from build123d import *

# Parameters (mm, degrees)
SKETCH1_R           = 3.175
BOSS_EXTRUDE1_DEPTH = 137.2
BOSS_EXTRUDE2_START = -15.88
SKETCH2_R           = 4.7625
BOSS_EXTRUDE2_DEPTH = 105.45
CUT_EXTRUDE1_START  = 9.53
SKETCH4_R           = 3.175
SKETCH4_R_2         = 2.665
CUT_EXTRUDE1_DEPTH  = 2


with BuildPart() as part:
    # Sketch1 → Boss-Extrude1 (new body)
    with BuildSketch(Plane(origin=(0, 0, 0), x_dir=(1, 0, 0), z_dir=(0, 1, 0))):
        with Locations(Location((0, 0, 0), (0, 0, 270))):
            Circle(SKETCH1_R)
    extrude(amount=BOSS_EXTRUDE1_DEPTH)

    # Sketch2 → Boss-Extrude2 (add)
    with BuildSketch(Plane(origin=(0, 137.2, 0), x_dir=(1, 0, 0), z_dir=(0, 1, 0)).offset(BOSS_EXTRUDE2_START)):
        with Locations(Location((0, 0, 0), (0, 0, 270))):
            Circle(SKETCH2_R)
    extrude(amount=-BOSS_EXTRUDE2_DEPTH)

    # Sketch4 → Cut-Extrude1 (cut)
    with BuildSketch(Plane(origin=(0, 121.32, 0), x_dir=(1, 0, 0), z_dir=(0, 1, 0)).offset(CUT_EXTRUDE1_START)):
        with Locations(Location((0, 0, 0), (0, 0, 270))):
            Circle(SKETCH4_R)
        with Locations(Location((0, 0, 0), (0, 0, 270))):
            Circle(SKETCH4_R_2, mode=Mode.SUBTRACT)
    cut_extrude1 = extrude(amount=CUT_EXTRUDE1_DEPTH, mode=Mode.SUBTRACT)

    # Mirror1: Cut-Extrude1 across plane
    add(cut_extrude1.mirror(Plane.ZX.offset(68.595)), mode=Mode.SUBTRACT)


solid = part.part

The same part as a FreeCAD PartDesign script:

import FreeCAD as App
import Part
import Sketcher
from FreeCAD import Vector

doc = App.newDocument("Part")
body = doc.addObject("PartDesign::Body", "Body")

sketch1 = body.newObject("Sketcher::SketchObject", "Sketch")
sketch1.AttachmentSupport = (doc.getObject("XZ_Plane"), [""])
sketch1.MapMode = "FlatFace"
sketch1.addGeometry(Part.Circle(Vector(0, 0, 0), Vector(0, 0, 1), 3.175), False)
sketch1.addConstraint(Sketcher.Constraint("Coincident", 0, 3, -1, 1))
sketch1.addConstraint(Sketcher.Constraint("Diameter", 0, 6.35))
pad1 = body.newObject("PartDesign::Pad", "Pad")
pad1.Profile = sketch1
pad1.Length = 137.2
pad1.Reversed = True

sketch2 = body.newObject("Sketcher::SketchObject", "Sketch001")
sketch2.AttachmentSupport = (doc.getObject("XZ_Plane"), [""])
sketch2.MapMode = "FlatFace"
sketch2.AttachmentOffset = App.Placement(Vector(0, 0, -121.32), App.Rotation())
sketch2.addGeometry(Part.Circle(Vector(0, 0, 0), Vector(0, 0, 1), 4.7625), False)
sketch2.addConstraint(Sketcher.Constraint("Coincident", 0, 3, -1, 1))
sketch2.addConstraint(Sketcher.Constraint("Diameter", 0, 9.525))
pad2 = body.newObject("PartDesign::Pad", "Pad001")
pad2.Profile = sketch2
pad2.Length = 105.45

sketch3 = body.newObject("Sketcher::SketchObject", "Sketch002")
sketch3.AttachmentSupport = (doc.getObject("XZ_Plane"), [""])
sketch3.MapMode = "FlatFace"
sketch3.AttachmentOffset = App.Placement(Vector(0, 0, -130.85), App.Rotation())
sketch3.addGeometry(Part.Circle(Vector(0, 0, 0), Vector(0, 0, 1), 3.175), False)
sketch3.addGeometry(Part.Circle(Vector(0, 0, 0), Vector(0, 0, 1), 2.665), False)
sketch3.addConstraint(Sketcher.Constraint("Coincident", 0, 3, -1, 1))
sketch3.addConstraint(Sketcher.Constraint("Coincident", 1, 3, -1, 1))
sketch3.addConstraint(Sketcher.Constraint("Diameter", 0, 6.35))
sketch3.addConstraint(Sketcher.Constraint("Diameter", 1, 5.33))
pocket1 = body.newObject("PartDesign::Pocket", "Pocket")
pocket1.Profile = sketch3
pocket1.Length = 2
doc.recompute()

datumplane = body.newObject("PartDesign::Plane", "DatumPlane")
datumplane.AttachmentSupport = (doc.getObject("XZ_Plane"), [""])
datumplane.MapMode = "FlatFace"
datumplane.AttachmentOffset = App.Placement(Vector(0, 0, -68.595), App.Rotation())
mirrored = body.newObject("PartDesign::Mirrored", "Mirrored")
mirrored.Originals = [pocket1]
mirrored.MirrorPlane = (datumplane, [""])
body.Tip = mirrored

doc.recompute()
